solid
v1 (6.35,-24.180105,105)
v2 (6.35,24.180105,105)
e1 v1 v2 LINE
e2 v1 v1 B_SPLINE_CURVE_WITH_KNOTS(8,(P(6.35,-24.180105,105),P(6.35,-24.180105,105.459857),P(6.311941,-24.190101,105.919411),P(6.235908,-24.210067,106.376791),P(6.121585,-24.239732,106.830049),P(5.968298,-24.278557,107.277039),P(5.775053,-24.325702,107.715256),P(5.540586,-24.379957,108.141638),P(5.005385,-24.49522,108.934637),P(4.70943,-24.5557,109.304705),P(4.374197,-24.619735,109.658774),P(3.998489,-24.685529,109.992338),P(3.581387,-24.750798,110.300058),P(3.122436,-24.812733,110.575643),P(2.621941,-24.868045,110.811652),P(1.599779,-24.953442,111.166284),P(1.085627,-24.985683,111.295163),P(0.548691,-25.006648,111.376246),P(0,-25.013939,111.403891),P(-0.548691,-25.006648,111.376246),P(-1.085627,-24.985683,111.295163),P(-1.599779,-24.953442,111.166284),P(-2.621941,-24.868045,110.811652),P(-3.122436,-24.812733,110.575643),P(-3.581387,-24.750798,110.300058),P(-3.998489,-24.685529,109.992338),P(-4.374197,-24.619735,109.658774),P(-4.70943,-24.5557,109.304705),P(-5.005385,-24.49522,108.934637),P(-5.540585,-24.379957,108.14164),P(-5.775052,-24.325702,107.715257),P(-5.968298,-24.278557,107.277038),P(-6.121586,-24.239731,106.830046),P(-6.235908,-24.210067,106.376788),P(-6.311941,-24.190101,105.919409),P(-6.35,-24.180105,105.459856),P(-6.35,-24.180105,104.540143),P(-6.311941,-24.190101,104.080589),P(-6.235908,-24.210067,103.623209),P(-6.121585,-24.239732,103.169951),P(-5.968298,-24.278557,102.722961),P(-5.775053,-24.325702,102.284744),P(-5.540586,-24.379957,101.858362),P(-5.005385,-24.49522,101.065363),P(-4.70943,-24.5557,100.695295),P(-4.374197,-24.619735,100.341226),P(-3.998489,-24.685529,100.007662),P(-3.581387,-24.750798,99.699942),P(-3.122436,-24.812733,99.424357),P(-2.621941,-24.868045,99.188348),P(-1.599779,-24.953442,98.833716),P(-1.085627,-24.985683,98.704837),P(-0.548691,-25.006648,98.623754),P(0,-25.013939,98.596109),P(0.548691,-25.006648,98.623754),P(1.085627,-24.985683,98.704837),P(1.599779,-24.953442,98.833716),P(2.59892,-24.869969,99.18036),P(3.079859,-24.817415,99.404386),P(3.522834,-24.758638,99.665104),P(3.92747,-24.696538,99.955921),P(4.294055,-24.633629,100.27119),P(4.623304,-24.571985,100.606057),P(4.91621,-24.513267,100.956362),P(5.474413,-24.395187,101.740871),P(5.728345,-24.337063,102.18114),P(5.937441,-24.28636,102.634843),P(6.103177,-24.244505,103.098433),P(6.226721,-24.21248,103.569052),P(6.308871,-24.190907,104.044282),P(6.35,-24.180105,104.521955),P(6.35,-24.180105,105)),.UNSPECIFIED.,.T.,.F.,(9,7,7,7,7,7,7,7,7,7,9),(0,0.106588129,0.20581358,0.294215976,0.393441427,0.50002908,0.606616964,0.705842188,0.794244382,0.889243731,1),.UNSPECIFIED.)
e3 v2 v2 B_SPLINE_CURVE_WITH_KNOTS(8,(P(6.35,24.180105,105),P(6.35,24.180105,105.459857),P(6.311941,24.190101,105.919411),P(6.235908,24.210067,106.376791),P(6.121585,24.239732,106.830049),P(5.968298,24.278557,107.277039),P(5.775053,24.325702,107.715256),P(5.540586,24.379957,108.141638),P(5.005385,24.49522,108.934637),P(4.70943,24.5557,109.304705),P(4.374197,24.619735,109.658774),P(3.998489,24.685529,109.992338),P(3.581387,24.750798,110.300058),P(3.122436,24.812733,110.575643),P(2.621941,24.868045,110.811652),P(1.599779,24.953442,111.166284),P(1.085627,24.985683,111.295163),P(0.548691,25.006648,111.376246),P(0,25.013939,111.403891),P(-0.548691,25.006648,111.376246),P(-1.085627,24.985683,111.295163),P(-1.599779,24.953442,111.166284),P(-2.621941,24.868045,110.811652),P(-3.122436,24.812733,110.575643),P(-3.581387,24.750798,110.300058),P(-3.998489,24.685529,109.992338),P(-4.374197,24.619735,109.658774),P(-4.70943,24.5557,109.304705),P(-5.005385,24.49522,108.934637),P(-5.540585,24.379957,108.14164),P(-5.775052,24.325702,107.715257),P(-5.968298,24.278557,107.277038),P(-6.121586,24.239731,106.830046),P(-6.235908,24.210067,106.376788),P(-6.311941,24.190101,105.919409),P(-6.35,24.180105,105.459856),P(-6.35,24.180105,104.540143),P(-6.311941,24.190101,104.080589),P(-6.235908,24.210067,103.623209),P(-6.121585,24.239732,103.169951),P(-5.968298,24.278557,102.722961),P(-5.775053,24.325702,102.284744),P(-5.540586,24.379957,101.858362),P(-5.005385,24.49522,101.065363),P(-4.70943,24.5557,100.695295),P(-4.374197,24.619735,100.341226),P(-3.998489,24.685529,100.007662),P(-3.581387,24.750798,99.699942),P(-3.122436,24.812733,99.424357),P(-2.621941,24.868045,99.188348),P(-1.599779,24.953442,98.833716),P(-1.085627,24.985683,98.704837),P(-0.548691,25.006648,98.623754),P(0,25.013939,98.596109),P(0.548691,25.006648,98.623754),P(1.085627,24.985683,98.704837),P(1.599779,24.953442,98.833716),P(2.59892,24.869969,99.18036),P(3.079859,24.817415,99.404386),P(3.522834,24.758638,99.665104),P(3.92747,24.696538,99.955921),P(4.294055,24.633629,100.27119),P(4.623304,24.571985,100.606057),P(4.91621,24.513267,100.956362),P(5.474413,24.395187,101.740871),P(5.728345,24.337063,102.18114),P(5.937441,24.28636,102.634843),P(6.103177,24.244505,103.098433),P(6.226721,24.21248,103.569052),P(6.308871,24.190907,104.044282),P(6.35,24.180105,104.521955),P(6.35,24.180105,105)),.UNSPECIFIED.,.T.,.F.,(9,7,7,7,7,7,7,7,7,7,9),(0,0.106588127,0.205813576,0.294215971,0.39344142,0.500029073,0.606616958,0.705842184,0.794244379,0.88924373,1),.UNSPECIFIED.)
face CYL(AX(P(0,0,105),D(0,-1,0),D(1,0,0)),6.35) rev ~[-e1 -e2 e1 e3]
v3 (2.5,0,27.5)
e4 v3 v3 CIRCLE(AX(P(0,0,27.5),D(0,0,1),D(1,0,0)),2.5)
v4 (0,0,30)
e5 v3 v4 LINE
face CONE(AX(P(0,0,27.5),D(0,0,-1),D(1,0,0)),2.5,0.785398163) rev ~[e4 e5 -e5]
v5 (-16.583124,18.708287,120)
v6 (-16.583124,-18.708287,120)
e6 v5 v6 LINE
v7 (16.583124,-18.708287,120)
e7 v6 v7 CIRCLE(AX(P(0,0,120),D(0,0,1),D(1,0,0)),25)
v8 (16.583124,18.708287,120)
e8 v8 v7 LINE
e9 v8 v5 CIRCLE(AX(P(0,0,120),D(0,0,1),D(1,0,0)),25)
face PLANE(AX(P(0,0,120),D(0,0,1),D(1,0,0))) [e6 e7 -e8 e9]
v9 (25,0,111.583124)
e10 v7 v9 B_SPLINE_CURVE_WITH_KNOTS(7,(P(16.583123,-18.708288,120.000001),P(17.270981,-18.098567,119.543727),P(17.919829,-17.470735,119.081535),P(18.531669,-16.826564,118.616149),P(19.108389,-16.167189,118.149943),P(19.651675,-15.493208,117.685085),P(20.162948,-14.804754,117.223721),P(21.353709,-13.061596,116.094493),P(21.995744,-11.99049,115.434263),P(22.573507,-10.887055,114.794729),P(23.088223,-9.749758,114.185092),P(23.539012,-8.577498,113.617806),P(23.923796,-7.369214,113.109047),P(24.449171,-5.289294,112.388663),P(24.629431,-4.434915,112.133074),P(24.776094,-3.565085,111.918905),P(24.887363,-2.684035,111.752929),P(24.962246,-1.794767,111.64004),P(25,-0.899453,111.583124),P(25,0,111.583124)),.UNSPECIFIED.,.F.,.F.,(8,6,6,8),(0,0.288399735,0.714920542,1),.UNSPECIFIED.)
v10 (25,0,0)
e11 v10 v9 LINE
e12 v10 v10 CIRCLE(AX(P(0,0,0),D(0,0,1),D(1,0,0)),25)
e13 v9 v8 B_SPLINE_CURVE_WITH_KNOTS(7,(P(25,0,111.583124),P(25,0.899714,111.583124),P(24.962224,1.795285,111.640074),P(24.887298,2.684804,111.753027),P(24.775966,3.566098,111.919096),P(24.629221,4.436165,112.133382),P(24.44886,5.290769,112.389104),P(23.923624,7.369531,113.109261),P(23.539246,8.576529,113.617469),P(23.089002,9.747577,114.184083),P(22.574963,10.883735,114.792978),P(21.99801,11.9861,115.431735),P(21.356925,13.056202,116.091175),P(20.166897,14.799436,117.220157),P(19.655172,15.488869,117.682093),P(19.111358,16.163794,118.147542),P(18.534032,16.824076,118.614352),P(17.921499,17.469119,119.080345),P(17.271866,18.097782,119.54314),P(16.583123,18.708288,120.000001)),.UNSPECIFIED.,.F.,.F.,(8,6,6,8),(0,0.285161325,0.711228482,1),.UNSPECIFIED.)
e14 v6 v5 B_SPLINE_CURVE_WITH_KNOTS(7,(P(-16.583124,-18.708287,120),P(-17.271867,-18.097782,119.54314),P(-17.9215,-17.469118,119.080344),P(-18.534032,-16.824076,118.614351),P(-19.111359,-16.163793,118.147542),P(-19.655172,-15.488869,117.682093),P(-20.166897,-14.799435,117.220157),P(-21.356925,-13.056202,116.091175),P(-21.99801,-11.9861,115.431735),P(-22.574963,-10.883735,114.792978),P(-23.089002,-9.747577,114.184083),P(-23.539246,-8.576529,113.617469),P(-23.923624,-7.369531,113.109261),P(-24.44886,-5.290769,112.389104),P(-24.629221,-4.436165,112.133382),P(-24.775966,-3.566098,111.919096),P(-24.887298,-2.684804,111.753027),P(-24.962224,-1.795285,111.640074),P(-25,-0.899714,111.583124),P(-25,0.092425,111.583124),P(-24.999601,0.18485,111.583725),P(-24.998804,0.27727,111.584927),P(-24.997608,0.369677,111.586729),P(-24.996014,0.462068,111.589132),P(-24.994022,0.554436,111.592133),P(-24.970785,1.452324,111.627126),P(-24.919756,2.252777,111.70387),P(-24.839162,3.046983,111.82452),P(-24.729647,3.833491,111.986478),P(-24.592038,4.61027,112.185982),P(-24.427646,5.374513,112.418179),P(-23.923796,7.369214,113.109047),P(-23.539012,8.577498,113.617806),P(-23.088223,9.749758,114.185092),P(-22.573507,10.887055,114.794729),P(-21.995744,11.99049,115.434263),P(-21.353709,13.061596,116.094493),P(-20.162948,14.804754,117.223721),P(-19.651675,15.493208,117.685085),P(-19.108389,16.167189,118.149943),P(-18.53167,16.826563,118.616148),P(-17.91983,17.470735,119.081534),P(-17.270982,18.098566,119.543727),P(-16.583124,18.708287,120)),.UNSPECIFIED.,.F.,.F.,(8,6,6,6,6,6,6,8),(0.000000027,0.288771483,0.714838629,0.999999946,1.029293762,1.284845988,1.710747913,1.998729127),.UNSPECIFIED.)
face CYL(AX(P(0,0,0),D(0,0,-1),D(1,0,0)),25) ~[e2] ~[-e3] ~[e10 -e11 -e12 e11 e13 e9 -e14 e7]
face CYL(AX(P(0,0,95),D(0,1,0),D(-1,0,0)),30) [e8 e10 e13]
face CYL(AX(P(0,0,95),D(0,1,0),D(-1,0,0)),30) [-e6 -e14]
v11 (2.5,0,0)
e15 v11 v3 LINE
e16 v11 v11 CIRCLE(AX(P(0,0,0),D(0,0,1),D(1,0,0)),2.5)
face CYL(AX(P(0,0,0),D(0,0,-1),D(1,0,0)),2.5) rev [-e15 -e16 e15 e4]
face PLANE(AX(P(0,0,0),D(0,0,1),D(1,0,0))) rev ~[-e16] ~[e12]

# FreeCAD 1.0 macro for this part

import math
import FreeCAD as App
import Part
import Sketcher

V = App.Vector


def edges_at(feature, points):
    """Names of the edges that pass closest to the given points."""
    edges = feature.Shape.Edges
    near = lambda p: min(range(len(edges)), key=lambda i: edges[i].distToShape(Part.Vertex(*p))[0])
    return sorted({f"Edge{near(p) + 1}" for p in points})

doc = App.newDocument("Part")
body = doc.addObject("PartDesign::Body", "Body")

# Sketch on XY plane
sketch1 = body.newObject("Sketcher::SketchObject", "Sketch")
sketch1.AttachmentSupport = (doc.getObject("XY_Plane"), [""])
sketch1.MapMode = "FlatFace"
sketch1.addGeometry(Part.Circle(V(0, 0, 0), V(0, 0, 1), 25), False)
sketch1.addConstraint([
    Sketcher.Constraint("Coincident", 0, 3, -1, 1),
    Sketcher.Constraint("Diameter", 0, 50.0),
])
pad1 = body.newObject("PartDesign::Pad", "Pad")
pad1.Profile = sketch1
pad1.Length = 120

# Sketch on XY plane
sketch2 = body.newObject("Sketcher::SketchObject", "Sketch001")
sketch2.AttachmentSupport = (doc.getObject("XY_Plane"), [""])
sketch2.MapMode = "FlatFace"
sketch2.addGeometry(Part.Circle(V(0, 0, 0), V(0, 0, 1), 2.5), False)
sketch2.addConstraint([
    Sketcher.Constraint("Coincident", 0, 3, -1, 1),
    Sketcher.Constraint("Diameter", 0, 5.0),
])
pocket1 = body.newObject("PartDesign::Pocket", "Pocket")
pocket1.Profile = sketch2
pocket1.Length = 30
pocket1.Reversed = True
doc.recompute()

chamfer = body.newObject("PartDesign::Chamfer", "Chamfer")
chamfer.Base = (pocket1, edges_at(pocket1, [(-2.5, 0, 30)]))
chamfer.Size = 2.5

# Sketch on XZ plane
sketch3 = body.newObject("Sketcher::SketchObject", "Sketch002")
sketch3.AttachmentSupport = (doc.getObject("XZ_Plane"), [""])
sketch3.MapMode = "FlatFace"
sketch3.addGeometry([
    Part.Circle(V(0, 105, 0), V(0, 0, 1), 6),  # 0
    Part.ArcOfCircle(Part.Circle(V(0, 95, 0), V(0, 0, 1), 30), math.radians(0), math.radians(180)),  # 1
    Part.LineSegment(V(30, 95, 0), V(52, 95, 0)),  # 2
    Part.LineSegment(V(52, 95, 0), V(52, 155, 0)),  # 3
    Part.LineSegment(V(52, 155, 0), V(-49, 155, 0)),  # 4
    Part.LineSegment(V(-49, 155, 0), V(-49, 95, 0)),  # 5
    Part.LineSegment(V(-49, 95, 0), V(-30, 95, 0)),  # 6
], False)
sketch3.addConstraint([
    Sketcher.Constraint("Coincident", 1, 1, 2, 1),
    Sketcher.Constraint("Coincident", 2, 2, 3, 1),
    Sketcher.Constraint("Coincident", 3, 2, 4, 1),
    Sketcher.Constraint("Coincident", 4, 2, 5, 1),
    Sketcher.Constraint("Coincident", 5, 2, 6, 1),
    Sketcher.Constraint("Coincident", 6, 2, 1, 2),
    Sketcher.Constraint("Horizontal", 2),
    Sketcher.Constraint("Vertical", 3),
    Sketcher.Constraint("Horizontal", 4),
    Sketcher.Constraint("Vertical", 5),
    Sketcher.Constraint("Horizontal", 6),
    Sketcher.Constraint("Symmetric", 1, 1, 6, 2, -2),
    Sketcher.Constraint("PointOnObject", 0, 3, -2),
    Sketcher.Constraint("Radius", 1, 30.0),
    Sketcher.Constraint("Diameter", 0, 12.7),
    Sketcher.Constraint("DistanceY", -1, 1, 0, 3, 105.0),
    Sketcher.Constraint("DistanceY", -1, 1, 1, 3, 95.0),
    Sketcher.Constraint("DistanceY", -1, 1, 1, 1, 95.0),
    Sketcher.Constraint("DistanceY", 3, 1, 3, 2, 59.9235),
    Sketcher.Constraint("DistanceX", 2, 1, 2, 2, 21.988307),
    Sketcher.Constraint("DistanceX", 4, 2, 4, 1, 101.429354),
])
pocket2 = body.newObject("PartDesign::Pocket", "Pocket001")
pocket2.Profile = sketch3
pocket2.Type = "ThroughAll"
pocket2.Midplane = True

doc.recompute()
